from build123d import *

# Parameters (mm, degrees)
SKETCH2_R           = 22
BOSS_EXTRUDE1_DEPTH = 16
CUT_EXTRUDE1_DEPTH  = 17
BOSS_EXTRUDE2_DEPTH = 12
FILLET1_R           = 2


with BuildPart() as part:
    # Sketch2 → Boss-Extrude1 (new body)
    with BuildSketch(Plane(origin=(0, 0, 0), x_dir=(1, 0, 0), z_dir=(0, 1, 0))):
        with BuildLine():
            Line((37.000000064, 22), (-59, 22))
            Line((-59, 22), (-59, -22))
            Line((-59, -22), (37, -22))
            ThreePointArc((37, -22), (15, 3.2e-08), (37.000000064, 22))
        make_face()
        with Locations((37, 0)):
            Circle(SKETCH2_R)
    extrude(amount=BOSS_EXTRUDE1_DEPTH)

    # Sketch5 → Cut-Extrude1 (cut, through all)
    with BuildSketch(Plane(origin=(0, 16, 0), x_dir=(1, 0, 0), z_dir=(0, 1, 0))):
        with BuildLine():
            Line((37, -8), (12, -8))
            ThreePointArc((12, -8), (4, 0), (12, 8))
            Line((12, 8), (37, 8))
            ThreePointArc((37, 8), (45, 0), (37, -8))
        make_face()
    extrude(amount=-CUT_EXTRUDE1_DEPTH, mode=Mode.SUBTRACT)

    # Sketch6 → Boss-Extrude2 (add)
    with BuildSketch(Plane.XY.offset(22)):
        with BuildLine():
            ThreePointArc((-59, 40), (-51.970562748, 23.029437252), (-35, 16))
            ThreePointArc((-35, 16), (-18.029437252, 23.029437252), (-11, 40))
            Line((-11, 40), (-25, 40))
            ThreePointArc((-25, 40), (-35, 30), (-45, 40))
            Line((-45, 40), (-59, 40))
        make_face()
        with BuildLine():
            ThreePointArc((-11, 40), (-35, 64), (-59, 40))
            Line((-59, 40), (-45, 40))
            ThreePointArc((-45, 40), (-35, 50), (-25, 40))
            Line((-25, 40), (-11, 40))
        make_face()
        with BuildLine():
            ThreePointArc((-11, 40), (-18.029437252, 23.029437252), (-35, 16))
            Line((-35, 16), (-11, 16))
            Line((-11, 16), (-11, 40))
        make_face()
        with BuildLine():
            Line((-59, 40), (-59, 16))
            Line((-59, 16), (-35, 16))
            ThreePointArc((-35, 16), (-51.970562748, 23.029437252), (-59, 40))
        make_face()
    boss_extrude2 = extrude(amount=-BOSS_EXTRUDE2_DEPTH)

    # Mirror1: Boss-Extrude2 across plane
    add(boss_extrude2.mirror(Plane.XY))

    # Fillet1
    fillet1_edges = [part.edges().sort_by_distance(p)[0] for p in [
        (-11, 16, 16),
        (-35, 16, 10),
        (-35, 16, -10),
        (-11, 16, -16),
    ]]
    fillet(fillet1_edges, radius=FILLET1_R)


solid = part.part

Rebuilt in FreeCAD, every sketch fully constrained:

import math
import FreeCAD as App
import Part
import Sketcher

V = App.Vector
Q = App.Units.Quantity


def edges_at(feature, points):
    """Names of the edges that pass closest to the given points."""
    edges = feature.Shape.Edges
    near = lambda p: min(range(len(edges)), key=lambda i: edges[i].distToShape(Part.Vertex(*p))[0])
    return sorted({f"Edge{near(p) + 1}" for p in points})

doc = App.newDocument("Part")
body = doc.addObject("PartDesign::Body", "Body")

# Sketch on XZ plane
sketch1 = body.newObject("Sketcher::SketchObject", "Sketch")
sketch1.AttachmentSupport = (doc.getObject("XZ_Plane"), [""])
sketch1.MapMode = "FlatFace"
sketch1.addGeometry(Part.LineSegment(V(37, -22, 0), V(-59, -22, 0)), False)
sketch1.addGeometry(Part.LineSegment(V(-59, -22, 0), V(-59, 22, 0)), False)
sketch1.addGeometry(Part.LineSegment(V(-59, 22, 0), V(37, 22, 0)), False)
sketch1.addGeometry(Part.ArcOfCircle(Part.Circle(V(37, 0, 0), V(0, 0, 1), 22), math.radians(-90), math.radians(90)), False)
sketch1.addConstraint(Sketcher.Constraint("Coincident", 0, 2, 1, 1))
sketch1.addConstraint(Sketcher.Constraint("Coincident", 1, 2, 2, 1))
sketch1.addConstraint(Sketcher.Constraint("Tangent", 2, 2, 3, 2))
sketch1.addConstraint(Sketcher.Constraint("Tangent", 3, 1, 0, 1))
sketch1.addConstraint(Sketcher.Constraint("Horizontal", 0))
sketch1.addConstraint(Sketcher.Constraint("Vertical", 1))
sketch1.addConstraint(Sketcher.Constraint("Horizontal", 2))
sketch1.addConstraint(Sketcher.Constraint("PointOnObject", 3, 3, -1))
sketch1.addConstraint(Sketcher.Constraint("Radius", 3, Q("22 mm")))
sketch1.addConstraint(Sketcher.Constraint("DistanceX", 0, 2, 0, 1, Q("96 mm")))
sketch1.addConstraint(Sketcher.Constraint("DistanceX", -1, 1, 3, 3, Q("37 mm")))
pad1 = body.newObject("PartDesign::Pad", "Pad")
pad1.Profile = sketch1
pad1.Length = 16
pad1.Reversed = True

# Sketch on XZ plane
sketch2 = body.newObject("Sketcher::SketchObject", "Sketch001")
sketch2.AttachmentSupport = (doc.getObject("XZ_Plane"), [""])
sketch2.MapMode = "FlatFace"
sketch2.AttachmentOffset = App.Placement(V(0, 0, -16), App.Rotation())
sketch2.addGeometry(Part.LineSegment(V(12, 8, 0), V(37, 8, 0)), False)
sketch2.addGeometry(Part.ArcOfCircle(Part.Circle(V(37, 0, 0), V(0, 0, 1), 8), math.radians(-90), math.radians(90)), False)
sketch2.addGeometry(Part.LineSegment(V(37, -8, 0), V(12, -8, 0)), False)
sketch2.addGeometry(Part.ArcOfCircle(Part.Circle(V(12, 0, 0), V(0, 0, 1), 8), math.radians(90), math.radians(270)), False)
sketch2.addConstraint(Sketcher.Constraint("Tangent", 0, 2, 1, 2))
sketch2.addConstraint(Sketcher.Constraint("Tangent", 1, 1, 2, 1))
sketch2.addConstraint(Sketcher.Constraint("Tangent", 2, 2, 3, 2))
sketch2.addConstraint(Sketcher.Constraint("Tangent", 3, 1, 0, 1))
sketch2.addConstraint(Sketcher.Constraint("Horizontal", 0))
sketch2.addConstraint(Sketcher.Constraint("Horizontal", 2))
sketch2.addConstraint(Sketcher.Constraint("PointOnObject", 1, 3, -1))
sketch2.addConstraint(Sketcher.Constraint("Radius", 1, Q("8 mm")))
sketch2.addConstraint(Sketcher.Constraint("DistanceX", 0, 1, 0, 2, Q("25 mm")))
sketch2.addConstraint(Sketcher.Constraint("DistanceX", -1, 1, 1, 3, Q("37 mm")))
pocket1 = body.newObject("PartDesign::Pocket", "Pocket")
pocket1.Profile = sketch2
pocket1.Type = "ThroughAll"
pocket1.Reversed = True

# Sketch on XY plane
sketch3 = body.newObject("Sketcher::SketchObject", "Sketch002")
sketch3.AttachmentSupport = (doc.getObject("XY_Plane"), [""])
sketch3.MapMode = "FlatFace"
sketch3.AttachmentOffset = App.Placement(V(0, 0, 22), App.Rotation())
sketch3.addGeometry(Part.ArcOfCircle(Part.Circle(V(-35, 40, 0), V(0, 0, 1), 24), math.radians(0), math.radians(180)), False)
sketch3.addGeometry(Part.LineSegment(V(-59, 40, 0), V(-59, 16, 0)), False)
sketch3.addGeometry(Part.LineSegment(V(-59, 16, 0), V(-11, 16, 0)), False)
sketch3.addGeometry(Part.LineSegment(V(-11, 16, 0), V(-11, 40, 0)), False)
sketch3.addGeometry(Part.Circle(V(-35, 40, 0), V(0, 0, 1), 10), False)
sketch3.addConstraint(Sketcher.Constraint("Tangent", 0, 2, 1, 1))
sketch3.addConstraint(Sketcher.Constraint("Coincident", 1, 2, 2, 1))
sketch3.addConstraint(Sketcher.Constraint("Coincident", 2, 2, 3, 1))
sketch3.addConstraint(Sketcher.Constraint("Tangent", 3, 2, 0, 1))
sketch3.addConstraint(Sketcher.Constraint("Vertical", 1))
sketch3.addConstraint(Sketcher.Constraint("Horizontal", 2))
sketch3.addConstraint(Sketcher.Constraint("Vertical", 3))
sketch3.addConstraint(Sketcher.Constraint("Coincident", 4, 3, 0, 3))
sketch3.addConstraint(Sketcher.Constraint("Diameter", 4, Q("20 mm")))
sketch3.addConstraint(Sketcher.Constraint("Radius", 0, Q("24 mm")))
sketch3.addConstraint(Sketcher.Constraint("DistanceY", 1, 2, 1, 1, Q("24 mm")))
sketch3.addConstraint(Sketcher.Constraint("DistanceX", 0, 3, -1, 1, Q("35 mm")))
sketch3.addConstraint(Sketcher.Constraint("DistanceY", -1, 1, 0, 3, Q("40 mm")))
pad2 = body.newObject("PartDesign::Pad", "Pad001")
pad2.Profile = sketch3
pad2.Length = 12
pad2.Reversed = True
doc.recompute()

mirrored = body.newObject("PartDesign::Mirrored", "Mirrored")
mirrored.Originals = [pad2]
mirrored.MirrorPlane = (doc.getObject("XY_Plane"), [""])
body.Tip = mirrored
doc.recompute()

fillet = body.newObject("PartDesign::Fillet", "Fillet")
fillet.Base = (mirrored, edges_at(mirrored, [
    (-11, 16, 16),
    (-35, 16, 10),
    (-35, 16, -10),
    (-11, 16, -16),
]))
fillet.Radius = 2

doc.recompute()
